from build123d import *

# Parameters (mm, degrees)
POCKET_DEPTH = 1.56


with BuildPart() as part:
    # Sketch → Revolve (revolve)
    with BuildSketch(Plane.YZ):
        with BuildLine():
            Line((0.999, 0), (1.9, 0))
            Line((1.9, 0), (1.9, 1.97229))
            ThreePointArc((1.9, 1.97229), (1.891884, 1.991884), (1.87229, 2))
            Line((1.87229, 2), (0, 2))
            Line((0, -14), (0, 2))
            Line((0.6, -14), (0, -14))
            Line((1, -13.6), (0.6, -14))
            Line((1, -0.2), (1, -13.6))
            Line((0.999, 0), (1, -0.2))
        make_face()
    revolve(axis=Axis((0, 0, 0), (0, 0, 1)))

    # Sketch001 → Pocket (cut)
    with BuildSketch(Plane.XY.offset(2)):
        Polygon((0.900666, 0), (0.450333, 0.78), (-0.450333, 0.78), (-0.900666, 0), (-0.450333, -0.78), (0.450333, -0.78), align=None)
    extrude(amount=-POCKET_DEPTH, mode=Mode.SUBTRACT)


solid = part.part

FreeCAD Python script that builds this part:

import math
import FreeCAD as App
import Part
import Sketcher
from FreeCAD import Vector
Q = App.Units.Quantity


def add_polygon(sketch, points):
    """Adds a closed chain of lines whose ends are joined by coincident constraints."""
    first, n = sketch.GeometryCount, len(points)
    for a, b in zip(points, points[1:] + points[:1]):
        sketch.addGeometry(Part.LineSegment(App.Vector(*a, 0), App.Vector(*b, 0)), False)
    for i in range(n):
        sketch.addConstraint(Sketcher.Constraint("Coincident", first + i, 2, first + (i + 1) % n, 1))

doc = App.newDocument("Part")
body = doc.addObject("PartDesign::Body", "Body")

# Sketch on YZ plane
sketch1 = body.newObject("Sketcher::SketchObject", "Sketch")
sketch1.AttachmentSupport = (doc.getObject("YZ_Plane"), [""])
sketch1.MapMode = "FlatFace"
sketch1.addGeometry([
    Part.LineSegment(Vector(0.999, 0, 0), Vector(1.9, 0, 0)),  # 0
    Part.LineSegment(Vector(1.9, 0, 0), Vector(1.9, 1.97229, 0)),  # 1
    Part.ArcOfCircle(Part.Circle(Vector(1.87229, 1.97229, 0), Vector(0, 0, 1), 0.02771), math.radians(-0.000502), math.radians(90.000502)),  # 2
    Part.LineSegment(Vector(1.87229, 2, 0), Vector(0, 2, 0)),  # 3
    Part.LineSegment(Vector(0, 2, 0), Vector(0, -14, 0)),  # 4
    Part.LineSegment(Vector(0, -14, 0), Vector(0.6, -14, 0)),  # 5
    Part.LineSegment(Vector(0.6, -14, 0), Vector(1, -13.6, 0)),  # 6
    Part.LineSegment(Vector(1, -13.6, 0), Vector(1, -0.2, 0)),  # 7
    Part.LineSegment(Vector(1, -0.2, 0), Vector(0.999, 0, 0)),  # 8
], False)
sketch1.addConstraint([
    Sketcher.Constraint("Coincident", 0, 2, 1, 1),
    Sketcher.Constraint("Coincident", 1, 2, 2, 1),
    Sketcher.Constraint("Coincident", 2, 2, 3, 1),
    Sketcher.Constraint("Coincident", 3, 2, 4, 1),
    Sketcher.Constraint("Coincident", 4, 2, 5, 1),
    Sketcher.Constraint("Coincident", 5, 2, 6, 1),
    Sketcher.Constraint("Coincident", 6, 2, 7, 1),
    Sketcher.Constraint("Coincident", 7, 2, 8, 1),
    Sketcher.Constraint("Coincident", 8, 2, 0, 1),
    Sketcher.Constraint("Horizontal", 0),
    Sketcher.Constraint("Vertical", 1),
    Sketcher.Constraint("Horizontal", 3),
    Sketcher.Constraint("Vertical", 4),
    Sketcher.Constraint("Horizontal", 5),
    Sketcher.Constraint("Vertical", 7),
    Sketcher.Constraint("PointOnObject", 0, 2, -1),
    Sketcher.Constraint("PointOnObject", 3, 2, -2),
    Sketcher.Constraint("Horizontal", 2, 3, 1, 2),
    Sketcher.Constraint("DistanceY", 4, 2, 4, 1, Q("16 mm")),
    Sketcher.Constraint("Angle", 6, Q("45 deg")),
    Sketcher.Constraint("DistanceX", 5, 1, 5, 2, Q("0.6 mm")),
    Sketcher.Constraint("DistanceY", 7, 1, 7, 2, Q("13.4 mm")),
    Sketcher.Constraint("DistanceY", -1, 1, 2, 2, Q("2 mm")),
    Sketcher.Constraint("DistanceX", -1, 1, 6, 2, Q("1 mm")),
    Sketcher.Constraint("DistanceX", -1, 1, 0, 2, Q("1.9 mm")),
    Sketcher.Constraint("DistanceX", 0, 1, 0, 2, Q("0.901 mm")),
    Sketcher.Constraint("Radius", 2, Q("0.02771 mm")),
    Sketcher.Constraint("DistanceX", 3, 2, 3, 1, Q("1.87229 mm")),
])
revolution = body.newObject("PartDesign::Revolution", "Revolution")
revolution.Profile = sketch1
revolution.ReferenceAxis = (sketch1, ["V_Axis"])
revolution.Angle = 360

# Sketch on XY plane
sketch2 = body.newObject("Sketcher::SketchObject", "Sketch001")
sketch2.AttachmentSupport = (doc.getObject("XY_Plane"), [""])
sketch2.MapMode = "FlatFace"
sketch2.AttachmentOffset = App.Placement(Vector(0, 0, 2), App.Rotation())
add_polygon(sketch2, [(0.900666, 0), (0.450333, 0.78), (-0.450333, 0.78), (-0.900666, 0), (-0.450333, -0.78), (0.450333, -0.78)])  # lines 0-5
sketch2.addConstraint([
    Sketcher.Constraint("Horizontal", 1),
    Sketcher.Constraint("Horizontal", 4),
    Sketcher.Constraint("Symmetric", 0, 2, 3, 2, -1, 1),
    Sketcher.Constraint("Symmetric", 2, 2, 5, 2, -1, 1),
    Sketcher.Constraint("PointOnObject", 2, 2, -1),
    Sketcher.Constraint("Parallel", 2, 5),
    Sketcher.Constraint("Vertical", 1, 2, 3, 2),
    Sketcher.Constraint("Angle", 0, Q("119.999988 deg")),
    Sketcher.Constraint("DistanceY", -1, 1, 0, 2, Q("0.78 mm")),
    Sketcher.Constraint("DistanceX", 2, 2, 0, 2, Q("1.350999 mm")),
])
pocket1 = body.newObject("PartDesign::Pocket", "Pocket")
pocket1.Profile = sketch2
pocket1.Length = 1.56

doc.recompute()
